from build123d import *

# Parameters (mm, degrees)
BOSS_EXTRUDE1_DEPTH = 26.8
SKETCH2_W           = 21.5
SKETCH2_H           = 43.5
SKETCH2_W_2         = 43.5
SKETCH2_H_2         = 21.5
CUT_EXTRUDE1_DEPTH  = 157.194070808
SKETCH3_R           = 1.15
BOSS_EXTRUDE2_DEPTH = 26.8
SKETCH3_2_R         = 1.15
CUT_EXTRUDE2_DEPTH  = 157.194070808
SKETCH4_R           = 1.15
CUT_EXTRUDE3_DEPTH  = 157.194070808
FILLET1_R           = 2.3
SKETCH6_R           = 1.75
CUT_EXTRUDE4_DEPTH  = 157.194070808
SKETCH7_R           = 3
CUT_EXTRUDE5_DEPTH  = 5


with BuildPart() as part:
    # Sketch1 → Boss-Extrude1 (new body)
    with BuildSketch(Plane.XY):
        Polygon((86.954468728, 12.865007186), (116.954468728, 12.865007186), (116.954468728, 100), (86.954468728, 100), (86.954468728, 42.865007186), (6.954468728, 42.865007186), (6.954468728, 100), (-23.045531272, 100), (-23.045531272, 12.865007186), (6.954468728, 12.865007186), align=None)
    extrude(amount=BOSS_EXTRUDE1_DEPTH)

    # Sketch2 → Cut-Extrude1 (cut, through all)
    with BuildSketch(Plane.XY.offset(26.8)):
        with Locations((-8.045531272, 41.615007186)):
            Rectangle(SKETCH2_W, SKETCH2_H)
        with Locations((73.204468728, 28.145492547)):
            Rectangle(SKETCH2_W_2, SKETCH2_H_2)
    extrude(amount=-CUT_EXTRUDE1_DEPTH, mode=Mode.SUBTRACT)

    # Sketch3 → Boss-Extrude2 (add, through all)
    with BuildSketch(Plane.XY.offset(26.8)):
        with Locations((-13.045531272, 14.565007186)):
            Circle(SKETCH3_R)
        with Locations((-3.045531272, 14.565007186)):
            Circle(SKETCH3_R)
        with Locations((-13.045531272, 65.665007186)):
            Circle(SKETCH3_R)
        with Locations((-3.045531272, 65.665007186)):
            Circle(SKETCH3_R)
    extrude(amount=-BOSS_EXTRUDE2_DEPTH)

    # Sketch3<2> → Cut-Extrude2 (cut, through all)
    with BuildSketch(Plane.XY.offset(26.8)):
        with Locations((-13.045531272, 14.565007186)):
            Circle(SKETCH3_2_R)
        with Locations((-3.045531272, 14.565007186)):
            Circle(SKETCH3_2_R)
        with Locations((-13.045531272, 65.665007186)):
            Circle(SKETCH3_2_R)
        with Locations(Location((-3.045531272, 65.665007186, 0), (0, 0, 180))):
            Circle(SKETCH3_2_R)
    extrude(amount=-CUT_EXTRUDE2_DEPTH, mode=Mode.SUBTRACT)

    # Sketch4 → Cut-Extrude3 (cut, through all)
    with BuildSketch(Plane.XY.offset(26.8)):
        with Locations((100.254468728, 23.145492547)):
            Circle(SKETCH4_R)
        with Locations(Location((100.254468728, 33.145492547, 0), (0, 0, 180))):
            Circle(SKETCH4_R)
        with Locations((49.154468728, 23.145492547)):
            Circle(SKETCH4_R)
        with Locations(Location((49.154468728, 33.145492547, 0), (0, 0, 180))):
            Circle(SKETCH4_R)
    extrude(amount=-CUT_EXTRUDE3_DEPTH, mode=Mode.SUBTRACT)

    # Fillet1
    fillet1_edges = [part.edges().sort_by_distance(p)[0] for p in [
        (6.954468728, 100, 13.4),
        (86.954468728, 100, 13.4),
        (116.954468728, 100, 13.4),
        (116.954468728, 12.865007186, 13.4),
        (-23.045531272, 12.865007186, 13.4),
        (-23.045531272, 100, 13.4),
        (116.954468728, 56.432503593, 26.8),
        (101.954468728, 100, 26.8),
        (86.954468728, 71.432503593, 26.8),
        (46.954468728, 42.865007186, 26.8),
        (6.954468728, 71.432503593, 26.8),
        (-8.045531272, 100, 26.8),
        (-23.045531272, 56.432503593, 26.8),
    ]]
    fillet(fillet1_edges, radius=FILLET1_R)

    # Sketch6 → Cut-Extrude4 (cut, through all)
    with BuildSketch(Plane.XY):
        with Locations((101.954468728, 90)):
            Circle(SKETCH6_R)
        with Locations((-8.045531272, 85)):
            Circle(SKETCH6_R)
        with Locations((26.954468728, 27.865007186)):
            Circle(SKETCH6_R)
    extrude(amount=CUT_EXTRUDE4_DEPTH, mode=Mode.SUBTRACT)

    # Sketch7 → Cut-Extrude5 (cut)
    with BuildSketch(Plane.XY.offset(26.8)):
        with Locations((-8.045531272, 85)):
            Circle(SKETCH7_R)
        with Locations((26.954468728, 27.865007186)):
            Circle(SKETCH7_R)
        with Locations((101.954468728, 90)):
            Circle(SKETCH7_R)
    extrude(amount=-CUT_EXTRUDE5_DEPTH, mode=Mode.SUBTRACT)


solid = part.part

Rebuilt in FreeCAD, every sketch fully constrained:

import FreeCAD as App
import Part
import Sketcher

V = App.Vector


def edges_at(feature, points):
    """Names of the edges that pass closest to the given points."""
    edges = feature.Shape.Edges
    near = lambda p: min(range(len(edges)), key=lambda i: edges[i].distToShape(Part.Vertex(*p))[0])
    return sorted({f"Edge{near(p) + 1}" for p in points})

doc = App.newDocument("Part")
params = doc.addObject("Spreadsheet::Sheet", "Params")
for row, (alias, value) in enumerate([
    ("sketch1_width", "30 mm"),
    ("sketch1_width2", "80 mm"),
    ("pad1_length", "26.8 mm"),
    ("sketch2_width", "21.5 mm"),
    ("sketch2_width2", "43.5 mm"),
    ("sketch3_diameter", "2.3 mm"),
    ("pad2_length", "26.8 mm"),
    ("sketch4_diameter", "2.3 mm"),
    ("sketch5_diameter", "2.3 mm"),
    ("fillet_radius", "2.3 mm"),
    ("sketch6_diameter", "3.5 mm"),
    ("sketch7_diameter", "6 mm"),
    ("pocket5_length", "5 mm"),
], start=1):
    params.set(f"A{row}", alias)
    params.set(f"B{row}", "=" + value)
    params.setAlias(f"B{row}", alias)

body = doc.addObject("PartDesign::Body", "Body")

sketch1 = body.newObject("Sketcher::SketchObject", "Sketch")
sketch1.AttachmentSupport = (doc.getObject("XY_Plane"), [""])
sketch1.MapMode = "FlatFace"
sketch1.addGeometry([
    Part.LineSegment(V(116.954469, 12.865007, 0), V(116.954469, 100, 0)),
    Part.LineSegment(V(116.954469, 100, 0), V(86.954469, 100, 0)),
    Part.LineSegment(V(86.954469, 100, 0), V(86.954469, 42.865007, 0)),
    Part.LineSegment(V(86.954469, 42.865007, 0), V(6.954469, 42.865007, 0)),
    Part.LineSegment(V(6.954469, 42.865007, 0), V(6.954469, 100, 0)),
    Part.LineSegment(V(6.954469, 100, 0), V(-23.045531, 100, 0)),
    Part.LineSegment(V(-23.045531, 100, 0), V(-23.045531, 12.865007, 0)),
    Part.LineSegment(V(-23.045531, 12.865007, 0), V(116.954469, 12.865007, 0)),
], False)
sketch1.addConstraint([
    Sketcher.Constraint("Coincident", 0, 2, 1, 1),
    Sketcher.Constraint("Coincident", 1, 2, 2, 1),
    Sketcher.Constraint("Coincident", 2, 2, 3, 1),
    Sketcher.Constraint("Coincident", 3, 2, 4, 1),
    Sketcher.Constraint("Coincident", 4, 2, 5, 1),
    Sketcher.Constraint("Coincident", 5, 2, 6, 1),
    Sketcher.Constraint("Coincident", 6, 2, 7, 1),
    Sketcher.Constraint("Coincident", 7, 2, 0, 1),
    Sketcher.Constraint("Vertical", 0),
    Sketcher.Constraint("Horizontal", 1),
    Sketcher.Constraint("Vertical", 2),
    Sketcher.Constraint("Horizontal", 3),
    Sketcher.Constraint("Vertical", 4),
    Sketcher.Constraint("Horizontal", 5),
    Sketcher.Constraint("Vertical", 6),
    Sketcher.Constraint("Horizontal", 7),
    Sketcher.Constraint("Horizontal", 1, 2, 4, 2),
    Sketcher.Constraint("Equal", 1, 5),
    Sketcher.Constraint("DistanceX", 1, 2, 1, 1, 30.0),
    Sketcher.Constraint("DistanceX", 3, 2, 3, 1, 80.0),
    Sketcher.Constraint("DistanceY", -1, 1, 0, 2, 100.0),
    Sketcher.Constraint("DistanceY", 6, 2, 3, 2, 30.0),
    Sketcher.Constraint("DistanceY", 0, 1, 0, 2, 87.134993),
    Sketcher.Constraint("DistanceX", -1, 1, 0, 2, 116.954469),
])
sketch1.setExpression("Constraints[18]", "Params.sketch1_width")
sketch1.setExpression("Constraints[19]", "Params.sketch1_width2")
pad1 = body.newObject("PartDesign::Pad", "Pad")
pad1.Profile = sketch1
pad1.setExpression("Length", "Params.pad1_length")

sketch2 = body.newObject("Sketcher::SketchObject", "Sketch001")
sketch2.AttachmentSupport = (doc.getObject("XY_Plane"), [""])
sketch2.MapMode = "FlatFace"
sketch2.AttachmentOffset = App.Placement(V(0, 0, 26.8), App.Rotation())
sketch2.addGeometry([
    Part.LineSegment(V(-18.795531, 63.365007, 0), V(-18.795531, 19.865007, 0)),
    Part.LineSegment(V(-18.795531, 19.865007, 0), V(2.704469, 19.865007, 0)),
    Part.LineSegment(V(2.704469, 19.865007, 0), V(2.704469, 63.365007, 0)),
    Part.LineSegment(V(2.704469, 63.365007, 0), V(-18.795531, 63.365007, 0)),
    Part.LineSegment(V(51.454469, 38.895493, 0), V(51.454469, 17.395493, 0)),
    Part.LineSegment(V(51.454469, 17.395493, 0), V(94.954469, 17.395493, 0)),
    Part.LineSegment(V(94.954469, 17.395493, 0), V(94.954469, 38.895493, 0)),
    Part.LineSegment(V(94.954469, 38.895493, 0), V(51.454469, 38.895493, 0)),
], False)
sketch2.addConstraint([
    Sketcher.Constraint("Coincident", 0, 2, 1, 1),
    Sketcher.Constraint("Coincident", 1, 2, 2, 1),
    Sketcher.Constraint("Coincident", 2, 2, 3, 1),
    Sketcher.Constraint("Coincident", 3, 2, 0, 1),
    Sketcher.Constraint("Coincident", 4, 2, 5, 1),
    Sketcher.Constraint("Coincident", 5, 2, 6, 1),
    Sketcher.Constraint("Coincident", 6, 2, 7, 1),
    Sketcher.Constraint("Coincident", 7, 2, 4, 1),
    Sketcher.Constraint("Vertical", 0),
    Sketcher.Constraint("Horizontal", 1),
    Sketcher.Constraint("Vertical", 2),
    Sketcher.Constraint("Horizontal", 3),
    Sketcher.Constraint("Vertical", 4),
    Sketcher.Constraint("Horizontal", 5),
    Sketcher.Constraint("Vertical", 6),
    Sketcher.Constraint("Horizontal", 7),
    Sketcher.Constraint("Equal", 7, 0),
    Sketcher.Constraint("Equal", 3, 4),
    Sketcher.Constraint("DistanceX", 1, 1, 1, 2, 21.5),
    Sketcher.Constraint("DistanceX", 5, 1, 5, 2, 43.5),
    Sketcher.Constraint("DistanceX", 1, 2, 4, 2, 48.75),
    Sketcher.Constraint("DistanceX", 0, 2, -1, 1, 18.795531),
    Sketcher.Constraint("DistanceY", -1, 1, 0, 2, 19.865007),
    Sketcher.Constraint("DistanceY", -1, 1, 4, 2, 17.395493),
])
sketch2.setExpression("Constraints[18]", "Params.sketch2_width")
sketch2.setExpression("Constraints[19]", "Params.sketch2_width2")
pocket1 = body.newObject("PartDesign::Pocket", "Pocket")
pocket1.Profile = sketch2
pocket1.Type = "ThroughAll"

sketch3 = body.newObject("Sketcher::SketchObject", "Sketch002")
sketch3.AttachmentSupport = (doc.getObject("XY_Plane"), [""])
sketch3.MapMode = "FlatFace"
sketch3.AttachmentOffset = App.Placement(V(0, 0, 26.8), App.Rotation())
sketch3.addGeometry([
    Part.Circle(V(-13.045531, 14.565007, 0), V(0, 0, 1), 1.15),
    Part.Circle(V(-3.045531, 14.565007, 0), V(0, 0, 1), 1.15),
    Part.Circle(V(-13.045531, 65.665007, 0), V(0, 0, 1), 1.15),
    Part.Circle(V(-3.045531, 65.665007, 0), V(0, 0, 1), 1.15),
], False)
sketch3.addConstraint([
    Sketcher.Constraint("Equal", 0, 1),
    Sketcher.Constraint("Equal", 1, 2),
    Sketcher.Constraint("Equal", 2, 3),
    Sketcher.Constraint("Horizontal", 0, 3, 1, 3),
    Sketcher.Constraint("Horizontal", 2, 3, 3, 3),
    Sketcher.Constraint("Vertical", 0, 3, 2, 3),
    Sketcher.Constraint("Vertical", 1, 3, 3, 3),
    Sketcher.Constraint("Diameter", 0, 2.3),
    Sketcher.Constraint("DistanceX", 0, 3, 1, 3, 10.0),
    Sketcher.Constraint("DistanceY", 0, 3, 2, 3, 51.1),
    Sketcher.Constraint("DistanceX", 0, 3, -1, 1, 13.045531),
    Sketcher.Constraint("DistanceY", -1, 1, 0, 3, 14.565007),
])
sketch3.setExpression("Constraints[7]", "Params.sketch3_diameter")
pad2 = body.newObject("PartDesign::Pad", "Pad001")
pad2.Profile = sketch3
pad2.setExpression("Length", "Params.pad2_length")
pad2.Reversed = True

sketch4 = body.newObject("Sketcher::SketchObject", "Sketch003")
sketch4.AttachmentSupport = (doc.getObject("XY_Plane"), [""])
sketch4.MapMode = "FlatFace"
sketch4.AttachmentOffset = App.Placement(V(0, 0, 26.8), App.Rotation())
sketch4.addGeometry([
    Part.Circle(V(-13.045531, 14.565007, 0), V(0, 0, 1), 1.15),
    Part.Circle(V(-3.045531, 14.565007, 0), V(0, 0, 1), 1.15),
    Part.Circle(V(-13.045531, 65.665007, 0), V(0, 0, 1), 1.15),
    Part.Circle(V(-3.045531, 65.665007, 0), V(0, 0, 1), 1.15),
], False)
sketch4.addConstraint([
    Sketcher.Constraint("Equal", 0, 1),
    Sketcher.Constraint("Equal", 1, 2),
    Sketcher.Constraint("Equal", 2, 3),
    Sketcher.Constraint("Horizontal", 0, 3, 1, 3),
    Sketcher.Constraint("Horizontal", 2, 3, 3, 3),
    Sketcher.Constraint("Vertical", 0, 3, 2, 3),
    Sketcher.Constraint("Vertical", 1, 3, 3, 3),
    Sketcher.Constraint("Diameter", 0, 2.3),
    Sketcher.Constraint("DistanceX", 0, 3, 1, 3, 10.0),
    Sketcher.Constraint("DistanceY", 0, 3, 2, 3, 51.1),
    Sketcher.Constraint("DistanceX", 0, 3, -1, 1, 13.045531),
    Sketcher.Constraint("DistanceY", -1, 1, 0, 3, 14.565007),
])
sketch4.setExpression("Constraints[7]", "Params.sketch4_diameter")
pocket2 = body.newObject("PartDesign::Pocket", "Pocket001")
pocket2.Profile = sketch4
pocket2.Type = "ThroughAll"

sketch5 = body.newObject("Sketcher::SketchObject", "Sketch004")
sketch5.AttachmentSupport = (doc.getObject("XY_Plane"), [""])
sketch5.MapMode = "FlatFace"
sketch5.AttachmentOffset = App.Placement(V(0, 0, 26.8), App.Rotation())
sketch5.addGeometry([
    Part.Circle(V(100.254469, 23.145493, 0), V(0, 0, 1), 1.15),
    Part.Circle(V(100.254469, 33.145493, 0), V(0, 0, 1), 1.15),
    Part.Circle(V(49.154469, 23.145493, 0), V(0, 0, 1), 1.15),
    Part.Circle(V(49.154469, 33.145493, 0), V(0, 0, 1), 1.15),
], False)
sketch5.addConstraint([
    Sketcher.Constraint("Equal", 0, 1),
    Sketcher.Constraint("Equal", 1, 2),
    Sketcher.Constraint("Equal", 2, 3),
    Sketcher.Constraint("Horizontal", 0, 3, 2, 3),
    Sketcher.Constraint("Horizontal", 1, 3, 3, 3),
    Sketcher.Constraint("Vertical", 0, 3, 1, 3),
    Sketcher.Constraint("Vertical", 2, 3, 3, 3),
    Sketcher.Constraint("Diameter", 0, 2.3),
    Sketcher.Constraint("DistanceY", 0, 3, 1, 3, 10.0),
    Sketcher.Constraint("DistanceX", 2, 3, 0, 3, 51.1),
    Sketcher.Constraint("DistanceX", -1, 1, 0, 3, 100.254469),
    Sketcher.Constraint("DistanceY", -1, 1, 0, 3, 23.145493),
])
sketch5.setExpression("Constraints[7]", "Params.sketch5_diameter")
pocket3 = body.newObject("PartDesign::Pocket", "Pocket002")
pocket3.Profile = sketch5
pocket3.Type = "ThroughAll"
doc.recompute()

fillet = body.newObject("PartDesign::Fillet", "Fillet")
fillet.Base = (pocket3, edges_at(pocket3, [
    (6.954, 100, 13.4),
    (86.954, 100, 13.4),
    (116.954, 100, 13.4),
    (116.954, 12.865, 13.4),
    (-23.046, 12.865, 13.4),
    (-23.046, 100, 13.4),
    (116.954, 56.433, 26.8),
    (101.954, 100, 26.8),
    (86.954, 71.433, 26.8),
    (46.954, 42.865, 26.8),
    (6.954, 71.433, 26.8),
    (-8.046, 100, 26.8),
    (-23.046, 56.433, 26.8),
]))
fillet.setExpression("Radius", "Params.fillet_radius")

sketch6 = body.newObject("Sketcher::SketchObject", "Sketch005")
sketch6.AttachmentSupport = (doc.getObject("XY_Plane"), [""])
sketch6.MapMode = "FlatFace"
sketch6.addGeometry([
    Part.Circle(V(101.954469, 90, 0), V(0, 0, 1), 1.75),
    Part.Circle(V(-8.045531, 85, 0), V(0, 0, 1), 1.75),
    Part.Circle(V(26.954469, 27.865007, 0), V(0, 0, 1), 1.75),
], False)
sketch6.addConstraint([
    Sketcher.Constraint("Equal", 0, 1),
    Sketcher.Constraint("Equal", 1, 2),
    Sketcher.Constraint("Diameter", 0, 3.5),
    Sketcher.Constraint("DistanceY", -1, 1, 0, 3, 90.0),
    Sketcher.Constraint("DistanceY", -1, 1, 1, 3, 85.0),
    Sketcher.Constraint("DistanceX", 1, 3, 0, 3, 110.0),
    Sketcher.Constraint("DistanceX", 1, 3, 2, 3, 35.0),
    Sketcher.Constraint("DistanceX", -1, 1, 0, 3, 101.954469),
    Sketcher.Constraint("DistanceY", -1, 1, 2, 3, 27.865007),
])
sketch6.setExpression("Constraints[2]", "Params.sketch6_diameter")
pocket4 = body.newObject("PartDesign::Pocket", "Pocket003")
pocket4.Profile = sketch6
pocket4.Type = "ThroughAll"
pocket4.Reversed = True

sketch7 = body.newObject("Sketcher::SketchObject", "Sketch006")
sketch7.AttachmentSupport = (doc.getObject("XY_Plane"), [""])
sketch7.MapMode = "FlatFace"
sketch7.AttachmentOffset = App.Placement(V(0, 0, 26.8), App.Rotation())
sketch7.addGeometry([
    Part.Circle(V(-8.045531, 85, 0), V(0, 0, 1), 3),
    Part.Circle(V(26.954469, 27.865007, 0), V(0, 0, 1), 3),
    Part.Circle(V(101.954469, 90, 0), V(0, 0, 1), 3),
], False)
sketch7.addConstraint([
    Sketcher.Constraint("Equal", 0, 1),
    Sketcher.Constraint("Equal", 1, 2),
    Sketcher.Constraint("Diameter", 0, 6.0),
    Sketcher.Constraint("DistanceY", -1, 1, 0, 3, 85.0),
    Sketcher.Constraint("DistanceY", -1, 1, 2, 3, 90.0),
    Sketcher.Constraint("DistanceX", 0, 3, 1, 3, 35.0),
    Sketcher.Constraint("DistanceX", 1, 3, 2, 3, 75.0),
    Sketcher.Constraint("DistanceX", 0, 3, -1, 1, 8.045531),
    Sketcher.Constraint("DistanceY", -1, 1, 1, 3, 27.865007),
])
sketch7.setExpression("Constraints[2]", "Params.sketch7_diameter")
pocket5 = body.newObject("PartDesign::Pocket", "Pocket004")
pocket5.Profile = sketch7
pocket5.setExpression("Length", "Params.pocket5_length")

doc.recompute()
